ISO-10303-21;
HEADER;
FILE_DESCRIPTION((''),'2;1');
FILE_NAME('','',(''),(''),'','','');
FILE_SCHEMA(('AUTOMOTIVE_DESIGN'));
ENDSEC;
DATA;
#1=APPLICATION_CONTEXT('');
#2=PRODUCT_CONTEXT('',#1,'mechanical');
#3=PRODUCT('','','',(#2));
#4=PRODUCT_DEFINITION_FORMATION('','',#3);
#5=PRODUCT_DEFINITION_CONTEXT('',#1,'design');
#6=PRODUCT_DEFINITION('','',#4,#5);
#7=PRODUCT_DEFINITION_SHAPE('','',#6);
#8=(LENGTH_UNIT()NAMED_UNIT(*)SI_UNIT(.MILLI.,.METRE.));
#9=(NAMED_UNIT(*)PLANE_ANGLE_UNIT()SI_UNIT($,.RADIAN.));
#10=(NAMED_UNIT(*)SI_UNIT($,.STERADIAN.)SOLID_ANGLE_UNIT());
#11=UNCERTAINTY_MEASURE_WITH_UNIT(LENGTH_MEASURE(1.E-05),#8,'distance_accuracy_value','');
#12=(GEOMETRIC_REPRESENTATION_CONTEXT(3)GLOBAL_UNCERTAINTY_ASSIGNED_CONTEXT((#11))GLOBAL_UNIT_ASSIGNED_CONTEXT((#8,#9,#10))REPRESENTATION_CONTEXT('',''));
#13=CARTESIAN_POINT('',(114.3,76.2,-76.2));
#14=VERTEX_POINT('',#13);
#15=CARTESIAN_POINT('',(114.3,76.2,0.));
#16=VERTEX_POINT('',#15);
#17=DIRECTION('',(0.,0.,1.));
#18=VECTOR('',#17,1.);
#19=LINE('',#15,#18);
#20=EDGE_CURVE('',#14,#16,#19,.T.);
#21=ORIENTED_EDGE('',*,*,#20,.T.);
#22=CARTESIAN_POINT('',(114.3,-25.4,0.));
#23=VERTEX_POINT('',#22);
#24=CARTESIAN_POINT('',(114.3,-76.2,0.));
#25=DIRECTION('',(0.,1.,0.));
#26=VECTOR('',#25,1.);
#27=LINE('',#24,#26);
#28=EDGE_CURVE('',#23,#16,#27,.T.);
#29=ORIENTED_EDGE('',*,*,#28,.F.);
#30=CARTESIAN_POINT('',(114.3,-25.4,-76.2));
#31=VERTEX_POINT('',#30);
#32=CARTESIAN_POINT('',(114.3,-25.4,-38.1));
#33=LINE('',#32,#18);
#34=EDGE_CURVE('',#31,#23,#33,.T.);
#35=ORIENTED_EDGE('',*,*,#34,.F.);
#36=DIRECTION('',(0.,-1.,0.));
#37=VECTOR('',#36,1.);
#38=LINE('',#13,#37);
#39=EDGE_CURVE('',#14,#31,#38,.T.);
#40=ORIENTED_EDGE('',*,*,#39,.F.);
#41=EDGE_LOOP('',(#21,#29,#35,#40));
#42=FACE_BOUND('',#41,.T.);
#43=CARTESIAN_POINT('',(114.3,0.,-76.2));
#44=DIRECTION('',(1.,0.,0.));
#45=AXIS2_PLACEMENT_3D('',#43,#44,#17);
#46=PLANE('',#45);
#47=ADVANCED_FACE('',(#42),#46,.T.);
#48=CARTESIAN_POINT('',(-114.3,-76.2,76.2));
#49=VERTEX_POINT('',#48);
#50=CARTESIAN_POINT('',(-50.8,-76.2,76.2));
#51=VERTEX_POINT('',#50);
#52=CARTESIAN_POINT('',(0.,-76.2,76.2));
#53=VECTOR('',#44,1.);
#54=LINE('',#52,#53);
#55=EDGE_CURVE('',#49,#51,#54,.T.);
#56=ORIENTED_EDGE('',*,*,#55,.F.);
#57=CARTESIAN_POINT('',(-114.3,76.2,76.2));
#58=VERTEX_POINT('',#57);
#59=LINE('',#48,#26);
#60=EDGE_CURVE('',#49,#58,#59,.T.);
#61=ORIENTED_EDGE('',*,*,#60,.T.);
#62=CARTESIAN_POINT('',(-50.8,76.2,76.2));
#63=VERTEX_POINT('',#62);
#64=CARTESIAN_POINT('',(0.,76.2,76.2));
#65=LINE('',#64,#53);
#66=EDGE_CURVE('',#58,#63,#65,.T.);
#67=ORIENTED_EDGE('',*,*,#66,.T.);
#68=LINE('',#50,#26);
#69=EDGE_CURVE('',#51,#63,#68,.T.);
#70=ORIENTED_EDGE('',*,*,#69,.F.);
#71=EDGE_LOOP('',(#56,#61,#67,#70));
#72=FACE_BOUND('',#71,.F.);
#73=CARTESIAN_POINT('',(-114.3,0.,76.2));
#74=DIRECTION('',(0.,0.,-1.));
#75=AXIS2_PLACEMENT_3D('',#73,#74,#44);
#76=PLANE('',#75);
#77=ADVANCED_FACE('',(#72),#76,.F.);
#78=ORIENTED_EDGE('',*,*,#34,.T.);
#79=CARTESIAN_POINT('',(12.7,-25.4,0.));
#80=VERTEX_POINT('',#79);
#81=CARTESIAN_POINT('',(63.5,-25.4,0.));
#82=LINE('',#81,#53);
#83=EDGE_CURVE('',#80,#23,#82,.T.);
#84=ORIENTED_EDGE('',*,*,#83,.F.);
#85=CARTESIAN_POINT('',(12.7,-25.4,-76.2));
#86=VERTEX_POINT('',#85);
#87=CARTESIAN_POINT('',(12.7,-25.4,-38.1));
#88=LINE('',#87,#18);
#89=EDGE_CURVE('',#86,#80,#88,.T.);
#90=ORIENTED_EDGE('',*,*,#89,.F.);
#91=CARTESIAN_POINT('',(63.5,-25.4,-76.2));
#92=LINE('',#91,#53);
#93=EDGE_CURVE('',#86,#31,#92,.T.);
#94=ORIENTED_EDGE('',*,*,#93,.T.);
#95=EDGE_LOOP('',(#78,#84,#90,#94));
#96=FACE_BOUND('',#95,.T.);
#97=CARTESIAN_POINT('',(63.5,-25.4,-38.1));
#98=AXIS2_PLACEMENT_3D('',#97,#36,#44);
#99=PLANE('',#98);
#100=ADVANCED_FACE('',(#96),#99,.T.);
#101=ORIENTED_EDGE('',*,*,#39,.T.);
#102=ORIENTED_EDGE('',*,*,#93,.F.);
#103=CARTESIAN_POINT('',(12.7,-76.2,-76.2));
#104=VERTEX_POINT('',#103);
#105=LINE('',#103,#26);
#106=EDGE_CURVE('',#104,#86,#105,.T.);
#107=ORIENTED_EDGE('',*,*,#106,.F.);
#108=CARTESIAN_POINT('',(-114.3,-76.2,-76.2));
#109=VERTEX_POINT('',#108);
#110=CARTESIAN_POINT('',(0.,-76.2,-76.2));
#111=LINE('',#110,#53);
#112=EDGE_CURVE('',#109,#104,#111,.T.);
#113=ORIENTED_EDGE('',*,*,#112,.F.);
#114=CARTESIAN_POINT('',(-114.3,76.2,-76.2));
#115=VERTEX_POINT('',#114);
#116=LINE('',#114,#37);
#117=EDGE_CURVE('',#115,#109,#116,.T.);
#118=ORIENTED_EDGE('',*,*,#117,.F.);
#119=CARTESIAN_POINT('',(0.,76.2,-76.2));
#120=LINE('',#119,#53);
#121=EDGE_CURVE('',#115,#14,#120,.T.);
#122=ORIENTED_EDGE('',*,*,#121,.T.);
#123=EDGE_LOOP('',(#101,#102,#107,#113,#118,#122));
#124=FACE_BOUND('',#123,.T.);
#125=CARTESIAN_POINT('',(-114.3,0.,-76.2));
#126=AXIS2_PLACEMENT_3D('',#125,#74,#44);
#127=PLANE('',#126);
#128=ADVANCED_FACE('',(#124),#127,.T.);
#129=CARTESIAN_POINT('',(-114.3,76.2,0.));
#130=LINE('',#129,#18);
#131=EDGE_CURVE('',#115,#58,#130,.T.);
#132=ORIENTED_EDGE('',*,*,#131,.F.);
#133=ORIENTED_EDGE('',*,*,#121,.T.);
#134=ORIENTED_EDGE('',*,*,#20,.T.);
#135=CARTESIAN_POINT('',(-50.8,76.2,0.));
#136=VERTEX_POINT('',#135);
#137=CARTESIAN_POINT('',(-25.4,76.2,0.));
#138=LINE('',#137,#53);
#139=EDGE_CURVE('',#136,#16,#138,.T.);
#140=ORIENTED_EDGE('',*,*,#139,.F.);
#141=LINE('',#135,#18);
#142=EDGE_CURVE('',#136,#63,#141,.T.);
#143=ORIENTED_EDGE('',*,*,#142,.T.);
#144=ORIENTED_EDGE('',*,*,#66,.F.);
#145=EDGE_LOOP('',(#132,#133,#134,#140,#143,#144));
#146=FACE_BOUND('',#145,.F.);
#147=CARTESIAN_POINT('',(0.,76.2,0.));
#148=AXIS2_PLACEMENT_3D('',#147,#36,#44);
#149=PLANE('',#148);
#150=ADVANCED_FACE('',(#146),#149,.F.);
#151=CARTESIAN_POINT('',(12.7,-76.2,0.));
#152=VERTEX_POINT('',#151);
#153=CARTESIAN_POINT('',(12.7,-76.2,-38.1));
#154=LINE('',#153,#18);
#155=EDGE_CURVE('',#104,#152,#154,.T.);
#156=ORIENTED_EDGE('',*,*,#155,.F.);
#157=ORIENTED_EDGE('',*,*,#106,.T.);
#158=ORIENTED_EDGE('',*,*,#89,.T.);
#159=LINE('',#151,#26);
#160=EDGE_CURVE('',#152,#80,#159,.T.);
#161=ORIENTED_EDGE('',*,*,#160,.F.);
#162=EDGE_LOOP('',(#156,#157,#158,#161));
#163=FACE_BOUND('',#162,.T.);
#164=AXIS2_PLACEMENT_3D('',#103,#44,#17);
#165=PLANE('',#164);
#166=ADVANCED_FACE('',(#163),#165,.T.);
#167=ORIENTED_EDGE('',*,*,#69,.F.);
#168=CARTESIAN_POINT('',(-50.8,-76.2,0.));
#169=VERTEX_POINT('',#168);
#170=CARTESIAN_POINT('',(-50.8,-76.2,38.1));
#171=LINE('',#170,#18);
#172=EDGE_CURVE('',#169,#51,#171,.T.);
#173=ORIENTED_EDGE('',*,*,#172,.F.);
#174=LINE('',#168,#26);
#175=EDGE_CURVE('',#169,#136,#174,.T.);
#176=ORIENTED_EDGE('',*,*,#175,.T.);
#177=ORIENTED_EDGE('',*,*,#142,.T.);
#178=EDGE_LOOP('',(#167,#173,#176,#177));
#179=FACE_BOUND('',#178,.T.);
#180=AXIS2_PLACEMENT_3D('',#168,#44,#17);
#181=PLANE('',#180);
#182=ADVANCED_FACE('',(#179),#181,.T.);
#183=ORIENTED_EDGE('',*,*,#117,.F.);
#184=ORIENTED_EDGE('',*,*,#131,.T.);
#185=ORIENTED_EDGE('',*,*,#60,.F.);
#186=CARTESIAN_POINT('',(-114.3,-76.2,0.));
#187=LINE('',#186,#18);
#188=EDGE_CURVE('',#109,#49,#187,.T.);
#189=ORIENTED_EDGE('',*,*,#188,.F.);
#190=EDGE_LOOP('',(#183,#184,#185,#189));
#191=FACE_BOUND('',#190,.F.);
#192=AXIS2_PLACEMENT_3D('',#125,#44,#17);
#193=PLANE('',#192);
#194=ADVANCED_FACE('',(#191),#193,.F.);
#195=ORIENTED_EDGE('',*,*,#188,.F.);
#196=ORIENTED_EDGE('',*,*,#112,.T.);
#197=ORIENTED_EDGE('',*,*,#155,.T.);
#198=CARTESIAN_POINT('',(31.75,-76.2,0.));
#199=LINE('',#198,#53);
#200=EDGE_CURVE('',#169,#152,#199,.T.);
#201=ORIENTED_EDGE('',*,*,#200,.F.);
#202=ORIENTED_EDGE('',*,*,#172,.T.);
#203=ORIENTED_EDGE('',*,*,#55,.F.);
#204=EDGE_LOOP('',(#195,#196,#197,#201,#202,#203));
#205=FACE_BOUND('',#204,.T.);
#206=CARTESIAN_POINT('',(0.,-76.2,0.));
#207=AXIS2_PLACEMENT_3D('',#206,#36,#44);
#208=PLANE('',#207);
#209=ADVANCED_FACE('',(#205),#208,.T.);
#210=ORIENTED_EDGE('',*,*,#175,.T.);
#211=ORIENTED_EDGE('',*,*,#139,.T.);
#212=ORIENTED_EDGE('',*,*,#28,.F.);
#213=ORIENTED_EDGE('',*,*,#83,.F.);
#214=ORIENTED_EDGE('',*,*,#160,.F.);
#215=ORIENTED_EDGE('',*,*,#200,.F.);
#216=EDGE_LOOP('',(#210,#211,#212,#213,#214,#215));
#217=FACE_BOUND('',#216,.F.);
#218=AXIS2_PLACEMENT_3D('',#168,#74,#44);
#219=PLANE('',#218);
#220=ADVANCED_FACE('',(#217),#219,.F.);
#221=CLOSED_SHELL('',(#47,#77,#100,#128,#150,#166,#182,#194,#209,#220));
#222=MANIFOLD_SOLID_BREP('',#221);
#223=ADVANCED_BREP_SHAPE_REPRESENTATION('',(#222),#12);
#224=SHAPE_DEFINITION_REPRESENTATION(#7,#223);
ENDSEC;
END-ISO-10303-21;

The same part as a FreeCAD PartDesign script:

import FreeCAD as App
import Part
import Sketcher
Q = App.Units.Quantity

doc = App.newDocument("Part")
params = doc.addObject("Spreadsheet::Sheet", "Params")
for row, (alias, value) in enumerate([
    ("sketch1_width", "9 in"),
    ("sketch1_height", "6 in"),
    ("pad1_length", "6 in"),
    ("sketch2_height", "3 in"),
    ("sketch2_width", "6.5 in"),
    ("sketch3_width", "4 in"),
    ("sketch3_height", "3 in"),
    ("pocket2_length", "2 in"),
], start=1):
    params.set(f"A{row}", alias)
    params.set(f"B{row}", "=" + value)
    params.setAlias(f"B{row}", alias)

body = doc.addObject("PartDesign::Body", "Body")

sketch1 = body.newObject("Sketcher::SketchObject", "Sketch")
sketch1.AttachmentSupport = (doc.getObject("XZ_Plane"), [""])
sketch1.MapMode = "FlatFace"
sketch1.addGeometry([
    Part.LineSegment(App.Vector(-114, 76, 0), App.Vector(-114, -76, 0)),
    Part.LineSegment(App.Vector(-114, -76, 0), App.Vector(114, -76, 0)),
    Part.LineSegment(App.Vector(114, -76, 0), App.Vector(114, 76, 0)),
    Part.LineSegment(App.Vector(114, 76, 0), App.Vector(-114, 76, 0)),
], False)
sketch1.addConstraint([
    Sketcher.Constraint("Coincident", 0, 2, 1, 1),
    Sketcher.Constraint("Coincident", 1, 2, 2, 1),
    Sketcher.Constraint("Coincident", 2, 2, 3, 1),
    Sketcher.Constraint("Coincident", 3, 2, 0, 1),
    Sketcher.Constraint("Vertical", 0),
    Sketcher.Constraint("Horizontal", 1),
    Sketcher.Constraint("Vertical", 2),
    Sketcher.Constraint("Horizontal", 3),
    Sketcher.Constraint("Symmetric", 0, 2, 2, 2, -1, 1),
    Sketcher.Constraint("DistanceX", 1, 1, 1, 2, Q("9 in")),
    Sketcher.Constraint("DistanceY", 0, 2, 0, 1, Q("6 in")),
])
sketch1.setExpression("Constraints[9]", "Params.sketch1_width")
sketch1.setExpression("Constraints[10]", "Params.sketch1_height")
pad1 = body.newObject("PartDesign::Pad", "Pad")
pad1.Profile = sketch1
pad1.setExpression("Length", "Params.pad1_length")
pad1.Midplane = True

sketch2 = body.newObject("Sketcher::SketchObject", "Sketch001")
sketch2.AttachmentSupport = (doc.getObject("XZ_Plane"), [""])
sketch2.MapMode = "FlatFace"
sketch2.AttachmentOffset = App.Placement(App.Vector(0, 0, 3 * 25.4), App.Rotation())
sketch2.addGeometry([
    Part.LineSegment(App.Vector(-51, 76, 0), App.Vector(-51, 0, 0)),
    Part.LineSegment(App.Vector(-51, 0, 0), App.Vector(114, 0, 0)),
    Part.LineSegment(App.Vector(114, 0, 0), App.Vector(114, 76, 0)),
    Part.LineSegment(App.Vector(114, 76, 0), App.Vector(-51, 76, 0)),
], False)
sketch2.addConstraint([
    Sketcher.Constraint("Coincident", 0, 2, 1, 1),
    Sketcher.Constraint("Coincident", 1, 2, 2, 1),
    Sketcher.Constraint("Coincident", 2, 2, 3, 1),
    Sketcher.Constraint("Coincident", 3, 2, 0, 1),
    Sketcher.Constraint("Vertical", 0),
    Sketcher.Constraint("Horizontal", 1),
    Sketcher.Constraint("Vertical", 2),
    Sketcher.Constraint("Horizontal", 3),
    Sketcher.Constraint("PointOnObject", 0, 2, -1),
    Sketcher.Constraint("DistanceY", 0, 2, 0, 1, Q("3 in")),
    Sketcher.Constraint("DistanceX", 1, 1, 1, 2, Q("6.5 in")),
    Sketcher.Constraint("DistanceX", 0, 2, -1, 1, Q("2 in")),
])
sketch2.setExpression("Constraints[9]", "Params.sketch2_height")
sketch2.setExpression("Constraints[10]", "Params.sketch2_width")
pocket1 = body.newObject("PartDesign::Pocket", "Pocket")
pocket1.Profile = sketch2
pocket1.Type = "ThroughAll"

sketch3 = body.newObject("Sketcher::SketchObject", "Sketch002")
sketch3.AttachmentSupport = (doc.getObject("XZ_Plane"), [""])
sketch3.MapMode = "FlatFace"
sketch3.AttachmentOffset = App.Placement(App.Vector(0, 0, 3 * 25.4), App.Rotation())
sketch3.addGeometry([
    Part.LineSegment(App.Vector(13, 0, 0), App.Vector(13, -76, 0)),
    Part.LineSegment(App.Vector(13, -76, 0), App.Vector(114, -76, 0)),
    Part.LineSegment(App.Vector(114, -76, 0), App.Vector(114, 0, 0)),
    Part.LineSegment(App.Vector(114, 0, 0), App.Vector(13, 0, 0)),
], False)
sketch3.addConstraint([
    Sketcher.Constraint("Coincident", 0, 2, 1, 1),
    Sketcher.Constraint("Coincident", 1, 2, 2, 1),
    Sketcher.Constraint("Coincident", 2, 2, 3, 1),
    Sketcher.Constraint("Coincident", 3, 2, 0, 1),
    Sketcher.Constraint("Vertical", 0),
    Sketcher.Constraint("Horizontal", 1),
    Sketcher.Constraint("Vertical", 2),
    Sketcher.Constraint("Horizontal", 3),
    Sketcher.Constraint("PointOnObject", 2, 2, -1),
    Sketcher.Constraint("DistanceX", 1, 1, 1, 2, Q("4 in")),
    Sketcher.Constraint("DistanceY", 0, 2, 0, 1, Q("3 in")),
    Sketcher.Constraint("DistanceX", -1, 1, 0, 2, Q("0.5 in")),
])
sketch3.setExpression("Constraints[9]", "Params.sketch3_width")
sketch3.setExpression("Constraints[10]", "Params.sketch3_height")
pocket2 = body.newObject("PartDesign::Pocket", "Pocket001")
pocket2.Profile = sketch3
pocket2.setExpression("Length", "Params.pocket2_length")

doc.recompute()
